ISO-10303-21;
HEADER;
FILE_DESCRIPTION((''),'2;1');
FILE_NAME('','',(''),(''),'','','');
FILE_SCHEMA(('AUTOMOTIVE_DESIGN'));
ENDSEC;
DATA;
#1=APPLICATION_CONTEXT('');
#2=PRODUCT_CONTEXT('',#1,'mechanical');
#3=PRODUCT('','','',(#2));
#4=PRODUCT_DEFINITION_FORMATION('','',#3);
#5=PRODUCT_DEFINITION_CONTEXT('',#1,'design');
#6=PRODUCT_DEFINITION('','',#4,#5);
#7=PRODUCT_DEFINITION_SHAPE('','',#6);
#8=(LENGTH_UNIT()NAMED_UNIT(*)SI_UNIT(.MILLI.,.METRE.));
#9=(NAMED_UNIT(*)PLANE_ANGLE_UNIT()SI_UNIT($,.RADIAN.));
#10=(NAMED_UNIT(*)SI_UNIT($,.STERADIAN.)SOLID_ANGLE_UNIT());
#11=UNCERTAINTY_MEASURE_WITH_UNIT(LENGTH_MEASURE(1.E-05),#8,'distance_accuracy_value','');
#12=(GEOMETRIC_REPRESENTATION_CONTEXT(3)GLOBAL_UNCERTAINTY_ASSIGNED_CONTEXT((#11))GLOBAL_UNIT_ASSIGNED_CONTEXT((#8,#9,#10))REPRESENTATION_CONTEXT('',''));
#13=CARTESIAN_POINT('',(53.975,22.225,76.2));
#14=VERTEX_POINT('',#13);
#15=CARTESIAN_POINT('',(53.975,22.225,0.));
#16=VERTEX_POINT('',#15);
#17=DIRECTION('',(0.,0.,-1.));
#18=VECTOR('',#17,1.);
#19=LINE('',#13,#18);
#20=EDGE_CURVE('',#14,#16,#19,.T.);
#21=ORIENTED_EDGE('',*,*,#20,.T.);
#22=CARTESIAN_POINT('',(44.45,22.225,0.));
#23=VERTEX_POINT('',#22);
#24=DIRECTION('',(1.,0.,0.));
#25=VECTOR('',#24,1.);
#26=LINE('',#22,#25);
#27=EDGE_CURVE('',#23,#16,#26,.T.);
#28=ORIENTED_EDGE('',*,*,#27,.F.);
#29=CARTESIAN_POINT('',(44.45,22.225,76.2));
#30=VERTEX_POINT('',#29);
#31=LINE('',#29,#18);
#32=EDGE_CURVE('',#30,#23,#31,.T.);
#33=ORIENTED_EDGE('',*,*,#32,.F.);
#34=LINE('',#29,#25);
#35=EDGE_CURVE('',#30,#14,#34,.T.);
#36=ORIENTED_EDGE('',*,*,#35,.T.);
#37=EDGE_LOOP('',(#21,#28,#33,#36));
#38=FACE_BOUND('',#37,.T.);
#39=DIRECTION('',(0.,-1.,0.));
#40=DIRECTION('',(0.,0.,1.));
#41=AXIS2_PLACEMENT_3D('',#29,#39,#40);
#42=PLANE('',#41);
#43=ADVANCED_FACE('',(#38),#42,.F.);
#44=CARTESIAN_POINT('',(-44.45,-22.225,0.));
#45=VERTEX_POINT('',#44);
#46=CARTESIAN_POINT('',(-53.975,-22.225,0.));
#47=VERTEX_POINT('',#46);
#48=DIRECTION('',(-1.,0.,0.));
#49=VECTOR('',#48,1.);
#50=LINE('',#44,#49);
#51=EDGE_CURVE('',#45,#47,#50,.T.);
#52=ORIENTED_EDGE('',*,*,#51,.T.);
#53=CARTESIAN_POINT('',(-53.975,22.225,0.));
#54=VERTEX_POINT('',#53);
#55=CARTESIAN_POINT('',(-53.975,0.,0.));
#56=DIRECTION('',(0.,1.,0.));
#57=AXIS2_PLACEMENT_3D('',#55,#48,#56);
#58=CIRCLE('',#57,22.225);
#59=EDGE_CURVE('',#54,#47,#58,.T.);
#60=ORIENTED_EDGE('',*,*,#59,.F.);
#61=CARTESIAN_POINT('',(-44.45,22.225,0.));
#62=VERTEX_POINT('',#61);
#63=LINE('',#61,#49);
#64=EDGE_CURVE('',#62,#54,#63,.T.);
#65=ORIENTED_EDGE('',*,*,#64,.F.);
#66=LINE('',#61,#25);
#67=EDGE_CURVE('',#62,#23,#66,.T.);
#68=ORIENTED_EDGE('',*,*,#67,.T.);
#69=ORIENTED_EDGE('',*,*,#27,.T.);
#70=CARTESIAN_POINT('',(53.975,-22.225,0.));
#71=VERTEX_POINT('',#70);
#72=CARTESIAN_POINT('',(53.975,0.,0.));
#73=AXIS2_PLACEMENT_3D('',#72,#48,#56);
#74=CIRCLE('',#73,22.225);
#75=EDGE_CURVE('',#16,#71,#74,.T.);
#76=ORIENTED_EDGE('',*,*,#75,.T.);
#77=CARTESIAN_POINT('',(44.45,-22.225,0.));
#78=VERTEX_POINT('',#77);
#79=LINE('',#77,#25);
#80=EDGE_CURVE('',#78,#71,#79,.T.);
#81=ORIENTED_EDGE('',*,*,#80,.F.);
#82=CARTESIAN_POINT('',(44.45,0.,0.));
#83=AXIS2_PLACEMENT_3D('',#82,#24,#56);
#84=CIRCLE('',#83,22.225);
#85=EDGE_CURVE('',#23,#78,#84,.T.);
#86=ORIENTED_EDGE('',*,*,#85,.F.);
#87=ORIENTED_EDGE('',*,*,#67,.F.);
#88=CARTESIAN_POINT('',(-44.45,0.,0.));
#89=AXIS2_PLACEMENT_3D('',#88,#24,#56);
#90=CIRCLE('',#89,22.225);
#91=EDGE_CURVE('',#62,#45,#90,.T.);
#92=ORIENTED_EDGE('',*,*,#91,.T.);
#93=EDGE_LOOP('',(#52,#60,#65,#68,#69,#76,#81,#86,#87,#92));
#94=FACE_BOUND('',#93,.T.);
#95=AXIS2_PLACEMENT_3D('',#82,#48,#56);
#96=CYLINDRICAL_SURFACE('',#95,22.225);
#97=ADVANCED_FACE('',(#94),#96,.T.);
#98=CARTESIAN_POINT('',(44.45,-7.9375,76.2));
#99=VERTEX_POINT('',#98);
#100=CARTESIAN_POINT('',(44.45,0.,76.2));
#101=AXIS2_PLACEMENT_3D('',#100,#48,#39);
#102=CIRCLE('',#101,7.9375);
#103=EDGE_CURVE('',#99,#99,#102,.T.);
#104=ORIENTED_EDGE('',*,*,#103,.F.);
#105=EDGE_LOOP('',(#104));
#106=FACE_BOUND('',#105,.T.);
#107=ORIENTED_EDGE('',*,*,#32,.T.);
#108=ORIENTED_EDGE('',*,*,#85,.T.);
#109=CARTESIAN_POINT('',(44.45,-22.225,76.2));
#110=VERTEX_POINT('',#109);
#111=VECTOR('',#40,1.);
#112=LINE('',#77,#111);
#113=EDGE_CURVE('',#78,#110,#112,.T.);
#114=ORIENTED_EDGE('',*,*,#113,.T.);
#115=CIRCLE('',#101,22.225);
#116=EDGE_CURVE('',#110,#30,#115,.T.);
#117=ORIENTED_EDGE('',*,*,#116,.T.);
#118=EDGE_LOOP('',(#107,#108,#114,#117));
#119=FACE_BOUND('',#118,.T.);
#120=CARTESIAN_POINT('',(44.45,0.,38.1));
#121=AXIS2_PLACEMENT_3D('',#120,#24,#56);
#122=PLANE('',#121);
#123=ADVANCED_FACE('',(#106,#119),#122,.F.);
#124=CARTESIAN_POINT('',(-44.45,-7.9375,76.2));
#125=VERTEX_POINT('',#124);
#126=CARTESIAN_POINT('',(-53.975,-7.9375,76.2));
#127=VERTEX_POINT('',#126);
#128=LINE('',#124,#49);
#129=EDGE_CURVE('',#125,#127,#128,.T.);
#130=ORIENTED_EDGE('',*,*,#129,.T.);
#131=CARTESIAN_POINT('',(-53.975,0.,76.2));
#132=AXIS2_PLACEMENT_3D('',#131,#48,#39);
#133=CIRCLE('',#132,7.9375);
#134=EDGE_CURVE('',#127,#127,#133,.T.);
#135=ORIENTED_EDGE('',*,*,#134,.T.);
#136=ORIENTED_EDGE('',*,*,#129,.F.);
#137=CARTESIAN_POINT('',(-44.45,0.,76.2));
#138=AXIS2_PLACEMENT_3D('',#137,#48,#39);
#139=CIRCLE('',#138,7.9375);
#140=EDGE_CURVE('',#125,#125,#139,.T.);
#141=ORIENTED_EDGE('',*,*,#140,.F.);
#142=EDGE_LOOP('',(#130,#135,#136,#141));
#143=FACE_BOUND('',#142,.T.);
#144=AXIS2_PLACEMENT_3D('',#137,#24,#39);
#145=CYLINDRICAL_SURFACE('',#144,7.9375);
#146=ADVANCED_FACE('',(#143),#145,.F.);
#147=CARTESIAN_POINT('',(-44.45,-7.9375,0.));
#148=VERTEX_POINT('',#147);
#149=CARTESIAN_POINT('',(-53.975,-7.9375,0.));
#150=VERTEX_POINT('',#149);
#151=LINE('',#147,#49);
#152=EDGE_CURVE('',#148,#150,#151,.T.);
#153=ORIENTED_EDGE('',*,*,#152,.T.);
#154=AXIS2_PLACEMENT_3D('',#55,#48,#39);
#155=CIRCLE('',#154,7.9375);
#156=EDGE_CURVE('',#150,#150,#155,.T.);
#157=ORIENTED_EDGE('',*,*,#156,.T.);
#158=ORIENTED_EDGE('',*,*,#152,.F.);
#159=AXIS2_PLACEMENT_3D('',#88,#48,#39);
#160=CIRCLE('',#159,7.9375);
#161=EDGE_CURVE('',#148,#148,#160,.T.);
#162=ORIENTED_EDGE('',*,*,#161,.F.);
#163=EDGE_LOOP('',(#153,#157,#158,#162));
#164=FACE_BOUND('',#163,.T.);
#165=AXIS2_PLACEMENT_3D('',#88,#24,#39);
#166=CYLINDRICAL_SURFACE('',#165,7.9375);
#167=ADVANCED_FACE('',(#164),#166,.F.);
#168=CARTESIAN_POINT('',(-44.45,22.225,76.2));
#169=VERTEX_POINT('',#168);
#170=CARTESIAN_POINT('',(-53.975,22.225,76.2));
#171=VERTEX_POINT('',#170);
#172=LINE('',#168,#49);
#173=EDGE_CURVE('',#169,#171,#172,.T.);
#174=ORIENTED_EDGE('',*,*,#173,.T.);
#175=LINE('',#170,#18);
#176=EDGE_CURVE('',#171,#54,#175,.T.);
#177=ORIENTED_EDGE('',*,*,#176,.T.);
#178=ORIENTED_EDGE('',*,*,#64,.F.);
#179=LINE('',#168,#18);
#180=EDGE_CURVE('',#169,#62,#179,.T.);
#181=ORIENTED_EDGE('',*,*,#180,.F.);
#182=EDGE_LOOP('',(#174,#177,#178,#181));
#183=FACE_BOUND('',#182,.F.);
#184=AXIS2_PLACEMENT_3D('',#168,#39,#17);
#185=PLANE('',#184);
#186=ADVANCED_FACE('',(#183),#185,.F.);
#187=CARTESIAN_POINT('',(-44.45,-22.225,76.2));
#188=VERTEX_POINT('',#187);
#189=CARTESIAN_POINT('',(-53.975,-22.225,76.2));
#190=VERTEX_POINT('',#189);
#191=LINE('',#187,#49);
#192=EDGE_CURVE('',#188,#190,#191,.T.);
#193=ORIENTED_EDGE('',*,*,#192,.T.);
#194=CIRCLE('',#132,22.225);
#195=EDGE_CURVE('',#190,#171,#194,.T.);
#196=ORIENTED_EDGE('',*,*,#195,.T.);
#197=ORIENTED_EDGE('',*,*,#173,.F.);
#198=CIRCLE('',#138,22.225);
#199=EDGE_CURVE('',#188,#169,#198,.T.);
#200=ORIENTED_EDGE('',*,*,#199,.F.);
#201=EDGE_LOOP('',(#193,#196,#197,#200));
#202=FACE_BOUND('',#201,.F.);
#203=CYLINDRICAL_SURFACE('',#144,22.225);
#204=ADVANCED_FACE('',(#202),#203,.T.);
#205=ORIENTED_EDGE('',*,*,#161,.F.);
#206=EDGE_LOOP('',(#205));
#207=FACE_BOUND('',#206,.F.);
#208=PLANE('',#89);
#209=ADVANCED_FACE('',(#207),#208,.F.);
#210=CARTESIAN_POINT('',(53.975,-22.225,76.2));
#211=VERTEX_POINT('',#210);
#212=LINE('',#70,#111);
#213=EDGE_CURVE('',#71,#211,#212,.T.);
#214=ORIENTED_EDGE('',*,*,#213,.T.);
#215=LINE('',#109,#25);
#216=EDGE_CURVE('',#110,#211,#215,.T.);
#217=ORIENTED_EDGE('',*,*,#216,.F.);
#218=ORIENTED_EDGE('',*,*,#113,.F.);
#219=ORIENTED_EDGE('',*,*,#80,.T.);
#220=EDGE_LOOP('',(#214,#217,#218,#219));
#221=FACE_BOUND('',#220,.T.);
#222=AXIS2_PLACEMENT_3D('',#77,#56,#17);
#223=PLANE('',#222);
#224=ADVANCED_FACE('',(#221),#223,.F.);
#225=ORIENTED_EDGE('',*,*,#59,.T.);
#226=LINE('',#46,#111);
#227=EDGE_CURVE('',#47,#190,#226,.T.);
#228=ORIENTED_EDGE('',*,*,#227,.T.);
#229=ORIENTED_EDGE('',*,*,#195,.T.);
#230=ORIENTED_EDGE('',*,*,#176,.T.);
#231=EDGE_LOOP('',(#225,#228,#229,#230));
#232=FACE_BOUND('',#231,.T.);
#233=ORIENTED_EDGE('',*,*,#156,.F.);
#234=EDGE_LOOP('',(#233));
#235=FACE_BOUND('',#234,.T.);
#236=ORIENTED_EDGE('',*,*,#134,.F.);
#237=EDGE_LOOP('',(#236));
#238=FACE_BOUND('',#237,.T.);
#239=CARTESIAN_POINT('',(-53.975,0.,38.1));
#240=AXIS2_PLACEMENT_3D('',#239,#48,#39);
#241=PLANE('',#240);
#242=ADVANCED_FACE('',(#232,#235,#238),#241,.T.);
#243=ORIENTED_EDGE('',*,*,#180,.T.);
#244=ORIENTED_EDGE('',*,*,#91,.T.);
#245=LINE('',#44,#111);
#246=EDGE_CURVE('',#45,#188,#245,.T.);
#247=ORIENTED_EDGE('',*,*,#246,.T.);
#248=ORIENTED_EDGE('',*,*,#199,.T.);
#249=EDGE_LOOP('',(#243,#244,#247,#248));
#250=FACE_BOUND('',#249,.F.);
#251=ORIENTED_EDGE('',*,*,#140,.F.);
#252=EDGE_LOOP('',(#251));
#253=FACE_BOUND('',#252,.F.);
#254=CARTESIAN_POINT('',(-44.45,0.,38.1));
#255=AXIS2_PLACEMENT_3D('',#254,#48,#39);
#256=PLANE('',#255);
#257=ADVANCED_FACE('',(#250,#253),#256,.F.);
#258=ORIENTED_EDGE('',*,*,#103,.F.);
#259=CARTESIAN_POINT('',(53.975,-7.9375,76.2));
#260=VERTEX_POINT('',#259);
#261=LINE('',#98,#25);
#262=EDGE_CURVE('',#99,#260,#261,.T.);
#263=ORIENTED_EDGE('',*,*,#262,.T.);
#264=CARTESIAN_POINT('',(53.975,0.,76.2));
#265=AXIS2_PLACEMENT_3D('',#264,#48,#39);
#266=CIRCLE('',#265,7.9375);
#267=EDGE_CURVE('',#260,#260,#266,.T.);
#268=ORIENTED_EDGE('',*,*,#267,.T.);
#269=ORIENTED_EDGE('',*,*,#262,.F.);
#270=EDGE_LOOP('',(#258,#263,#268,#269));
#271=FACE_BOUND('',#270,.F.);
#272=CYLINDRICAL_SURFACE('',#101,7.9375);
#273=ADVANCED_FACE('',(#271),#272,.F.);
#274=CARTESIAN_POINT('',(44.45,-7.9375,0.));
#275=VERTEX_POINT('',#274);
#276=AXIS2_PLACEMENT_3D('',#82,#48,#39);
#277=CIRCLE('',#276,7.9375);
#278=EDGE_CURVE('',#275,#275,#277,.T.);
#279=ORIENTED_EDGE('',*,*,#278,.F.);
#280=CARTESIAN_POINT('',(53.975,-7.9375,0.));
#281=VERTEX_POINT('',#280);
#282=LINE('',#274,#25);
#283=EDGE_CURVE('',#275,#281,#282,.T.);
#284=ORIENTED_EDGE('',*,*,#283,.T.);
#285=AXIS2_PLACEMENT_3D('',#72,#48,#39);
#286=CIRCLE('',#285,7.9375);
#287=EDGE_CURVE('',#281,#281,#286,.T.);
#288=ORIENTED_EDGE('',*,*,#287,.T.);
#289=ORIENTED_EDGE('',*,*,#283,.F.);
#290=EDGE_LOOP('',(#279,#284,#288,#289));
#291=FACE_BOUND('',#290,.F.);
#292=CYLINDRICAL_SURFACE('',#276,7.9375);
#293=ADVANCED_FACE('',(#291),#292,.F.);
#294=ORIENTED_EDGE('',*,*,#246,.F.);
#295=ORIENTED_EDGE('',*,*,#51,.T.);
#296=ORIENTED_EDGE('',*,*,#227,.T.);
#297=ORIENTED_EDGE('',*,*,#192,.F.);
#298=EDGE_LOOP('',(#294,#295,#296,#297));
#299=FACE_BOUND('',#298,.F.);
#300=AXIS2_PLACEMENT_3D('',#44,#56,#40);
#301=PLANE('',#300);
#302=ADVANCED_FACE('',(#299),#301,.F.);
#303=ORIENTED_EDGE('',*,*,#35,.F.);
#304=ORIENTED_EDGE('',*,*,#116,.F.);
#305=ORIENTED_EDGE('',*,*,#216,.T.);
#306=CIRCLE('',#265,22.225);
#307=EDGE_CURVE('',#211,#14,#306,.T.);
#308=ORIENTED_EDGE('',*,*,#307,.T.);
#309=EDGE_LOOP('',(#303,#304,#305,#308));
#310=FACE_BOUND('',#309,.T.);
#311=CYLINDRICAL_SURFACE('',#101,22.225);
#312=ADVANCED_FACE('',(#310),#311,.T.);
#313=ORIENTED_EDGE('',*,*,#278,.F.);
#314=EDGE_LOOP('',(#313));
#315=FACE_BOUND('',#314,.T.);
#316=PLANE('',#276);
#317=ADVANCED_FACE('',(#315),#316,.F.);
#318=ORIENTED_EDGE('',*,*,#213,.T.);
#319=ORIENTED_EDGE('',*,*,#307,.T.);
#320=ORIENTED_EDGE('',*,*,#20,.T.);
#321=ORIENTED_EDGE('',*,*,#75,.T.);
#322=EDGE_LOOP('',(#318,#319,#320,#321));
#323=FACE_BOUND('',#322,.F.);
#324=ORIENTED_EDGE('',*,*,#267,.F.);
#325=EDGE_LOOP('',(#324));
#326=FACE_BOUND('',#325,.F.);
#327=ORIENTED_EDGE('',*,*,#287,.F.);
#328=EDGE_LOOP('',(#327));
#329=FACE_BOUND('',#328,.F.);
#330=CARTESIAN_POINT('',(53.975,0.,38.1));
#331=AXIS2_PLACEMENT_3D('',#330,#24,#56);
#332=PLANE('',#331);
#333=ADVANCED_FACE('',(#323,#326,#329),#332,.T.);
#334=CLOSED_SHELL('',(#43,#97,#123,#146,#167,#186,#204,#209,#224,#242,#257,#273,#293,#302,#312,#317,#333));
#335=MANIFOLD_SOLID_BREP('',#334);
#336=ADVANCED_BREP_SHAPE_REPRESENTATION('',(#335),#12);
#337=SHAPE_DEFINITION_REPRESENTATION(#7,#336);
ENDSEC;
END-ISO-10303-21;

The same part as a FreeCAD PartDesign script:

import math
import FreeCAD as App
import Part
import Sketcher

V = App.Vector
Q = App.Units.Quantity

doc = App.newDocument("Part")
body = doc.addObject("PartDesign::Body", "Body")

# Sketch on YZ plane
sketch1 = body.newObject("Sketcher::SketchObject", "Sketch")
sketch1.AttachmentSupport = (doc.getObject("YZ_Plane"), [""])
sketch1.MapMode = "FlatFace"
sketch1.addGeometry(Part.Circle(V(0, 0, 0), V(0, 0, 1), 22), False)
sketch1.addConstraint([
    Sketcher.Constraint("Coincident", 0, 3, -1, 1),
    Sketcher.Constraint("Diameter", 0, Q("1.75 in")),
])
pad1 = body.newObject("PartDesign::Pad", "Pad")
pad1.Profile = sketch1
pad1.Length = Q("3.5 in")
pad1.Midplane = True

# Sketch on YZ plane
sketch2 = body.newObject("Sketcher::SketchObject", "Sketch001")
sketch2.AttachmentSupport = (doc.getObject("YZ_Plane"), [""])
sketch2.MapMode = "FlatFace"
sketch2.AttachmentOffset = App.Placement(V(0, 0, -1.75 * 25.4), App.Rotation())
sketch2.addGeometry([
    Part.LineSegment(V(22, 76, 0), V(22, 0, 0)),  # 0
    Part.ArcOfCircle(Part.Circle(V(0, 0, 0), V(0, 0, 1), 22), math.radians(180), math.radians(360)),  # 1
    Part.LineSegment(V(-22, 0, 0), V(-22, 76, 0)),  # 2
    Part.ArcOfCircle(Part.Circle(V(0, 76, 0), V(0, 0, 1), 22), math.radians(0), math.radians(180)),  # 3
    Part.Circle(V(0, 0, 0), V(0, 0, 1), 8),  # 4
    Part.Circle(V(0, 76, 0), V(0, 0, 1), 8),  # 5
], False)
sketch2.addConstraint([
    Sketcher.Constraint("Tangent", 0, 2, 1, 2),
    Sketcher.Constraint("Tangent", 1, 1, 2, 1),
    Sketcher.Constraint("Tangent", 2, 2, 3, 2),
    Sketcher.Constraint("Tangent", 3, 1, 0, 1),
    Sketcher.Constraint("Vertical", 0),
    Sketcher.Constraint("Vertical", 2),
    Sketcher.Constraint("Coincident", 1, 3, -1, 1),
    Sketcher.Constraint("Coincident", 4, 3, -1, 1),
    Sketcher.Constraint("Coincident", 5, 3, 3, 3),
    Sketcher.Constraint("Equal", 4, 5),
    Sketcher.Constraint("DistanceY", 0, 2, 0, 1, Q("3 in")),
    Sketcher.Constraint("Diameter", 4, Q("0.625 in")),
    Sketcher.Constraint("Radius", 1, Q("0.875 in")),
])
pad2 = body.newObject("PartDesign::Pad", "Pad001")
pad2.Profile = sketch2
pad2.Length = Q("0.375 in")
pad2.Reversed = True
body2 = doc.addObject("PartDesign::Body", "Body001")
doc.recompute()

body2.BaseFeature = body
doc.recompute()

mirroring = doc.addObject("Part::Mirroring", "Mirroring")
mirroring.Source = body
mirroring.Base = V(0, 0, 0)
mirroring.Normal = V(1, 0, 0)
body3 = doc.addObject("PartDesign::Body", "Body002")
body3.BaseFeature = mirroring
boolean = body2.newObject("PartDesign::Boolean", "Boolean")
boolean.Type = "Fuse"
boolean.addObjects([body3])
doc.recompute()
mirroring.Visibility = False

doc.recompute()
